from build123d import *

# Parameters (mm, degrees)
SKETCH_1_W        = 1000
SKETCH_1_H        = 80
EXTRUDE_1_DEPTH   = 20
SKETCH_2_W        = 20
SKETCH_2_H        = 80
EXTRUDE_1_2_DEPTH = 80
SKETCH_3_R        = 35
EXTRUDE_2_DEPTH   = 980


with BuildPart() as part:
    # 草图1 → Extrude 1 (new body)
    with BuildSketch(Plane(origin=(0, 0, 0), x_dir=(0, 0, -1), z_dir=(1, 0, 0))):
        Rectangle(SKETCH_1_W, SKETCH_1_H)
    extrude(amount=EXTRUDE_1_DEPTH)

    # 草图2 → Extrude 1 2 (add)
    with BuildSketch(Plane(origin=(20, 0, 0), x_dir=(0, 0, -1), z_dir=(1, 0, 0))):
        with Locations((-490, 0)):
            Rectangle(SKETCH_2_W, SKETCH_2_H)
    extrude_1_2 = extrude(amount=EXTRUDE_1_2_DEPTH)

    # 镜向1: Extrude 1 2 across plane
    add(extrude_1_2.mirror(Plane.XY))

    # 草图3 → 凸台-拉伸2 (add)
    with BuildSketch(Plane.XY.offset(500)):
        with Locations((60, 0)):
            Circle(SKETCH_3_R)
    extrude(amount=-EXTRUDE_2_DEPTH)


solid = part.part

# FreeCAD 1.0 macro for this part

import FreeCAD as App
import Part
import Sketcher
from FreeCAD import Vector


def add_polygon(sketch, points):
    """Adds a closed chain of lines whose ends are joined by coincident constraints."""
    first, n = sketch.GeometryCount, len(points)
    for a, b in zip(points, points[1:] + points[:1]):
        sketch.addGeometry(Part.LineSegment(App.Vector(*a, 0), App.Vector(*b, 0)), False)
    for i in range(n):
        sketch.addConstraint(Sketcher.Constraint("Coincident", first + i, 2, first + (i + 1) % n, 1))

doc = App.newDocument("Part")
body = doc.addObject("PartDesign::Body", "Body")

# Sketch on YZ plane
sketch1 = body.newObject("Sketcher::SketchObject", "Sketch")
sketch1.AttachmentSupport = (doc.getObject("YZ_Plane"), [""])
sketch1.MapMode = "FlatFace"
add_polygon(sketch1, [(40, 500), (-40, 500), (-40, -500), (40, -500)])  # lines 0-3
sketch1.addConstraint(Sketcher.Constraint("Horizontal", 0))
sketch1.addConstraint(Sketcher.Constraint("Vertical", 1))
sketch1.addConstraint(Sketcher.Constraint("Horizontal", 2))
sketch1.addConstraint(Sketcher.Constraint("Vertical", 3))
sketch1.addConstraint(Sketcher.Constraint("Symmetric", 0, 2, 2, 2, -1, 1))
sketch1.addConstraint(Sketcher.Constraint("DistanceX", 0, 2, 0, 1, 80.0))
sketch1.addConstraint(Sketcher.Constraint("DistanceY", 1, 2, 1, 1, 1000.0))
pad1 = body.newObject("PartDesign::Pad", "Pad")
pad1.Profile = sketch1
pad1.Length = 20

# Sketch on YZ plane
sketch2 = body.newObject("Sketcher::SketchObject", "Sketch001")
sketch2.AttachmentSupport = (doc.getObject("YZ_Plane"), [""])
sketch2.MapMode = "FlatFace"
sketch2.AttachmentOffset = App.Placement(Vector(0, 0, 20), App.Rotation())
add_polygon(sketch2, [(40, 500), (-40, 500), (-40, 480), (40, 480)])  # lines 0-3
sketch2.addConstraint(Sketcher.Constraint("Horizontal", 0))
sketch2.addConstraint(Sketcher.Constraint("Vertical", 1))
sketch2.addConstraint(Sketcher.Constraint("Horizontal", 2))
sketch2.addConstraint(Sketcher.Constraint("Vertical", 3))
sketch2.addConstraint(Sketcher.Constraint("DistanceX", 0, 2, 0, 1, 80.0))
sketch2.addConstraint(Sketcher.Constraint("DistanceY", 1, 2, 1, 1, 20.0))
sketch2.addConstraint(Sketcher.Constraint("DistanceX", 0, 2, -1, 1, 40.0))
sketch2.addConstraint(Sketcher.Constraint("DistanceY", -1, 1, 0, 2, 500.0))
pad2 = body.newObject("PartDesign::Pad", "Pad001")
pad2.Profile = sketch2
pad2.Length = 80
doc.recompute()

mirrored = body.newObject("PartDesign::Mirrored", "Mirrored")
mirrored.Originals = [pad2]
mirrored.MirrorPlane = (doc.getObject("XY_Plane"), [""])
body.Tip = mirrored

# Sketch on XY plane
sketch3 = body.newObject("Sketcher::SketchObject", "Sketch002")
sketch3.AttachmentSupport = (doc.getObject("XY_Plane"), [""])
sketch3.MapMode = "FlatFace"
sketch3.AttachmentOffset = App.Placement(Vector(0, 0, 500), App.Rotation())
sketch3.addGeometry(Part.Circle(Vector(60, 0, 0), Vector(0, 0, 1), 35), False)
sketch3.addConstraint(Sketcher.Constraint("PointOnObject", 0, 3, -1))
sketch3.addConstraint(Sketcher.Constraint("Diameter", 0, 70.0))
sketch3.addConstraint(Sketcher.Constraint("DistanceX", -1, 1, 0, 3, 60.0))
pad3 = body.newObject("PartDesign::Pad", "Pad002")
pad3.Profile = sketch3
pad3.Length = 980
pad3.Reversed = True

doc.recompute()
